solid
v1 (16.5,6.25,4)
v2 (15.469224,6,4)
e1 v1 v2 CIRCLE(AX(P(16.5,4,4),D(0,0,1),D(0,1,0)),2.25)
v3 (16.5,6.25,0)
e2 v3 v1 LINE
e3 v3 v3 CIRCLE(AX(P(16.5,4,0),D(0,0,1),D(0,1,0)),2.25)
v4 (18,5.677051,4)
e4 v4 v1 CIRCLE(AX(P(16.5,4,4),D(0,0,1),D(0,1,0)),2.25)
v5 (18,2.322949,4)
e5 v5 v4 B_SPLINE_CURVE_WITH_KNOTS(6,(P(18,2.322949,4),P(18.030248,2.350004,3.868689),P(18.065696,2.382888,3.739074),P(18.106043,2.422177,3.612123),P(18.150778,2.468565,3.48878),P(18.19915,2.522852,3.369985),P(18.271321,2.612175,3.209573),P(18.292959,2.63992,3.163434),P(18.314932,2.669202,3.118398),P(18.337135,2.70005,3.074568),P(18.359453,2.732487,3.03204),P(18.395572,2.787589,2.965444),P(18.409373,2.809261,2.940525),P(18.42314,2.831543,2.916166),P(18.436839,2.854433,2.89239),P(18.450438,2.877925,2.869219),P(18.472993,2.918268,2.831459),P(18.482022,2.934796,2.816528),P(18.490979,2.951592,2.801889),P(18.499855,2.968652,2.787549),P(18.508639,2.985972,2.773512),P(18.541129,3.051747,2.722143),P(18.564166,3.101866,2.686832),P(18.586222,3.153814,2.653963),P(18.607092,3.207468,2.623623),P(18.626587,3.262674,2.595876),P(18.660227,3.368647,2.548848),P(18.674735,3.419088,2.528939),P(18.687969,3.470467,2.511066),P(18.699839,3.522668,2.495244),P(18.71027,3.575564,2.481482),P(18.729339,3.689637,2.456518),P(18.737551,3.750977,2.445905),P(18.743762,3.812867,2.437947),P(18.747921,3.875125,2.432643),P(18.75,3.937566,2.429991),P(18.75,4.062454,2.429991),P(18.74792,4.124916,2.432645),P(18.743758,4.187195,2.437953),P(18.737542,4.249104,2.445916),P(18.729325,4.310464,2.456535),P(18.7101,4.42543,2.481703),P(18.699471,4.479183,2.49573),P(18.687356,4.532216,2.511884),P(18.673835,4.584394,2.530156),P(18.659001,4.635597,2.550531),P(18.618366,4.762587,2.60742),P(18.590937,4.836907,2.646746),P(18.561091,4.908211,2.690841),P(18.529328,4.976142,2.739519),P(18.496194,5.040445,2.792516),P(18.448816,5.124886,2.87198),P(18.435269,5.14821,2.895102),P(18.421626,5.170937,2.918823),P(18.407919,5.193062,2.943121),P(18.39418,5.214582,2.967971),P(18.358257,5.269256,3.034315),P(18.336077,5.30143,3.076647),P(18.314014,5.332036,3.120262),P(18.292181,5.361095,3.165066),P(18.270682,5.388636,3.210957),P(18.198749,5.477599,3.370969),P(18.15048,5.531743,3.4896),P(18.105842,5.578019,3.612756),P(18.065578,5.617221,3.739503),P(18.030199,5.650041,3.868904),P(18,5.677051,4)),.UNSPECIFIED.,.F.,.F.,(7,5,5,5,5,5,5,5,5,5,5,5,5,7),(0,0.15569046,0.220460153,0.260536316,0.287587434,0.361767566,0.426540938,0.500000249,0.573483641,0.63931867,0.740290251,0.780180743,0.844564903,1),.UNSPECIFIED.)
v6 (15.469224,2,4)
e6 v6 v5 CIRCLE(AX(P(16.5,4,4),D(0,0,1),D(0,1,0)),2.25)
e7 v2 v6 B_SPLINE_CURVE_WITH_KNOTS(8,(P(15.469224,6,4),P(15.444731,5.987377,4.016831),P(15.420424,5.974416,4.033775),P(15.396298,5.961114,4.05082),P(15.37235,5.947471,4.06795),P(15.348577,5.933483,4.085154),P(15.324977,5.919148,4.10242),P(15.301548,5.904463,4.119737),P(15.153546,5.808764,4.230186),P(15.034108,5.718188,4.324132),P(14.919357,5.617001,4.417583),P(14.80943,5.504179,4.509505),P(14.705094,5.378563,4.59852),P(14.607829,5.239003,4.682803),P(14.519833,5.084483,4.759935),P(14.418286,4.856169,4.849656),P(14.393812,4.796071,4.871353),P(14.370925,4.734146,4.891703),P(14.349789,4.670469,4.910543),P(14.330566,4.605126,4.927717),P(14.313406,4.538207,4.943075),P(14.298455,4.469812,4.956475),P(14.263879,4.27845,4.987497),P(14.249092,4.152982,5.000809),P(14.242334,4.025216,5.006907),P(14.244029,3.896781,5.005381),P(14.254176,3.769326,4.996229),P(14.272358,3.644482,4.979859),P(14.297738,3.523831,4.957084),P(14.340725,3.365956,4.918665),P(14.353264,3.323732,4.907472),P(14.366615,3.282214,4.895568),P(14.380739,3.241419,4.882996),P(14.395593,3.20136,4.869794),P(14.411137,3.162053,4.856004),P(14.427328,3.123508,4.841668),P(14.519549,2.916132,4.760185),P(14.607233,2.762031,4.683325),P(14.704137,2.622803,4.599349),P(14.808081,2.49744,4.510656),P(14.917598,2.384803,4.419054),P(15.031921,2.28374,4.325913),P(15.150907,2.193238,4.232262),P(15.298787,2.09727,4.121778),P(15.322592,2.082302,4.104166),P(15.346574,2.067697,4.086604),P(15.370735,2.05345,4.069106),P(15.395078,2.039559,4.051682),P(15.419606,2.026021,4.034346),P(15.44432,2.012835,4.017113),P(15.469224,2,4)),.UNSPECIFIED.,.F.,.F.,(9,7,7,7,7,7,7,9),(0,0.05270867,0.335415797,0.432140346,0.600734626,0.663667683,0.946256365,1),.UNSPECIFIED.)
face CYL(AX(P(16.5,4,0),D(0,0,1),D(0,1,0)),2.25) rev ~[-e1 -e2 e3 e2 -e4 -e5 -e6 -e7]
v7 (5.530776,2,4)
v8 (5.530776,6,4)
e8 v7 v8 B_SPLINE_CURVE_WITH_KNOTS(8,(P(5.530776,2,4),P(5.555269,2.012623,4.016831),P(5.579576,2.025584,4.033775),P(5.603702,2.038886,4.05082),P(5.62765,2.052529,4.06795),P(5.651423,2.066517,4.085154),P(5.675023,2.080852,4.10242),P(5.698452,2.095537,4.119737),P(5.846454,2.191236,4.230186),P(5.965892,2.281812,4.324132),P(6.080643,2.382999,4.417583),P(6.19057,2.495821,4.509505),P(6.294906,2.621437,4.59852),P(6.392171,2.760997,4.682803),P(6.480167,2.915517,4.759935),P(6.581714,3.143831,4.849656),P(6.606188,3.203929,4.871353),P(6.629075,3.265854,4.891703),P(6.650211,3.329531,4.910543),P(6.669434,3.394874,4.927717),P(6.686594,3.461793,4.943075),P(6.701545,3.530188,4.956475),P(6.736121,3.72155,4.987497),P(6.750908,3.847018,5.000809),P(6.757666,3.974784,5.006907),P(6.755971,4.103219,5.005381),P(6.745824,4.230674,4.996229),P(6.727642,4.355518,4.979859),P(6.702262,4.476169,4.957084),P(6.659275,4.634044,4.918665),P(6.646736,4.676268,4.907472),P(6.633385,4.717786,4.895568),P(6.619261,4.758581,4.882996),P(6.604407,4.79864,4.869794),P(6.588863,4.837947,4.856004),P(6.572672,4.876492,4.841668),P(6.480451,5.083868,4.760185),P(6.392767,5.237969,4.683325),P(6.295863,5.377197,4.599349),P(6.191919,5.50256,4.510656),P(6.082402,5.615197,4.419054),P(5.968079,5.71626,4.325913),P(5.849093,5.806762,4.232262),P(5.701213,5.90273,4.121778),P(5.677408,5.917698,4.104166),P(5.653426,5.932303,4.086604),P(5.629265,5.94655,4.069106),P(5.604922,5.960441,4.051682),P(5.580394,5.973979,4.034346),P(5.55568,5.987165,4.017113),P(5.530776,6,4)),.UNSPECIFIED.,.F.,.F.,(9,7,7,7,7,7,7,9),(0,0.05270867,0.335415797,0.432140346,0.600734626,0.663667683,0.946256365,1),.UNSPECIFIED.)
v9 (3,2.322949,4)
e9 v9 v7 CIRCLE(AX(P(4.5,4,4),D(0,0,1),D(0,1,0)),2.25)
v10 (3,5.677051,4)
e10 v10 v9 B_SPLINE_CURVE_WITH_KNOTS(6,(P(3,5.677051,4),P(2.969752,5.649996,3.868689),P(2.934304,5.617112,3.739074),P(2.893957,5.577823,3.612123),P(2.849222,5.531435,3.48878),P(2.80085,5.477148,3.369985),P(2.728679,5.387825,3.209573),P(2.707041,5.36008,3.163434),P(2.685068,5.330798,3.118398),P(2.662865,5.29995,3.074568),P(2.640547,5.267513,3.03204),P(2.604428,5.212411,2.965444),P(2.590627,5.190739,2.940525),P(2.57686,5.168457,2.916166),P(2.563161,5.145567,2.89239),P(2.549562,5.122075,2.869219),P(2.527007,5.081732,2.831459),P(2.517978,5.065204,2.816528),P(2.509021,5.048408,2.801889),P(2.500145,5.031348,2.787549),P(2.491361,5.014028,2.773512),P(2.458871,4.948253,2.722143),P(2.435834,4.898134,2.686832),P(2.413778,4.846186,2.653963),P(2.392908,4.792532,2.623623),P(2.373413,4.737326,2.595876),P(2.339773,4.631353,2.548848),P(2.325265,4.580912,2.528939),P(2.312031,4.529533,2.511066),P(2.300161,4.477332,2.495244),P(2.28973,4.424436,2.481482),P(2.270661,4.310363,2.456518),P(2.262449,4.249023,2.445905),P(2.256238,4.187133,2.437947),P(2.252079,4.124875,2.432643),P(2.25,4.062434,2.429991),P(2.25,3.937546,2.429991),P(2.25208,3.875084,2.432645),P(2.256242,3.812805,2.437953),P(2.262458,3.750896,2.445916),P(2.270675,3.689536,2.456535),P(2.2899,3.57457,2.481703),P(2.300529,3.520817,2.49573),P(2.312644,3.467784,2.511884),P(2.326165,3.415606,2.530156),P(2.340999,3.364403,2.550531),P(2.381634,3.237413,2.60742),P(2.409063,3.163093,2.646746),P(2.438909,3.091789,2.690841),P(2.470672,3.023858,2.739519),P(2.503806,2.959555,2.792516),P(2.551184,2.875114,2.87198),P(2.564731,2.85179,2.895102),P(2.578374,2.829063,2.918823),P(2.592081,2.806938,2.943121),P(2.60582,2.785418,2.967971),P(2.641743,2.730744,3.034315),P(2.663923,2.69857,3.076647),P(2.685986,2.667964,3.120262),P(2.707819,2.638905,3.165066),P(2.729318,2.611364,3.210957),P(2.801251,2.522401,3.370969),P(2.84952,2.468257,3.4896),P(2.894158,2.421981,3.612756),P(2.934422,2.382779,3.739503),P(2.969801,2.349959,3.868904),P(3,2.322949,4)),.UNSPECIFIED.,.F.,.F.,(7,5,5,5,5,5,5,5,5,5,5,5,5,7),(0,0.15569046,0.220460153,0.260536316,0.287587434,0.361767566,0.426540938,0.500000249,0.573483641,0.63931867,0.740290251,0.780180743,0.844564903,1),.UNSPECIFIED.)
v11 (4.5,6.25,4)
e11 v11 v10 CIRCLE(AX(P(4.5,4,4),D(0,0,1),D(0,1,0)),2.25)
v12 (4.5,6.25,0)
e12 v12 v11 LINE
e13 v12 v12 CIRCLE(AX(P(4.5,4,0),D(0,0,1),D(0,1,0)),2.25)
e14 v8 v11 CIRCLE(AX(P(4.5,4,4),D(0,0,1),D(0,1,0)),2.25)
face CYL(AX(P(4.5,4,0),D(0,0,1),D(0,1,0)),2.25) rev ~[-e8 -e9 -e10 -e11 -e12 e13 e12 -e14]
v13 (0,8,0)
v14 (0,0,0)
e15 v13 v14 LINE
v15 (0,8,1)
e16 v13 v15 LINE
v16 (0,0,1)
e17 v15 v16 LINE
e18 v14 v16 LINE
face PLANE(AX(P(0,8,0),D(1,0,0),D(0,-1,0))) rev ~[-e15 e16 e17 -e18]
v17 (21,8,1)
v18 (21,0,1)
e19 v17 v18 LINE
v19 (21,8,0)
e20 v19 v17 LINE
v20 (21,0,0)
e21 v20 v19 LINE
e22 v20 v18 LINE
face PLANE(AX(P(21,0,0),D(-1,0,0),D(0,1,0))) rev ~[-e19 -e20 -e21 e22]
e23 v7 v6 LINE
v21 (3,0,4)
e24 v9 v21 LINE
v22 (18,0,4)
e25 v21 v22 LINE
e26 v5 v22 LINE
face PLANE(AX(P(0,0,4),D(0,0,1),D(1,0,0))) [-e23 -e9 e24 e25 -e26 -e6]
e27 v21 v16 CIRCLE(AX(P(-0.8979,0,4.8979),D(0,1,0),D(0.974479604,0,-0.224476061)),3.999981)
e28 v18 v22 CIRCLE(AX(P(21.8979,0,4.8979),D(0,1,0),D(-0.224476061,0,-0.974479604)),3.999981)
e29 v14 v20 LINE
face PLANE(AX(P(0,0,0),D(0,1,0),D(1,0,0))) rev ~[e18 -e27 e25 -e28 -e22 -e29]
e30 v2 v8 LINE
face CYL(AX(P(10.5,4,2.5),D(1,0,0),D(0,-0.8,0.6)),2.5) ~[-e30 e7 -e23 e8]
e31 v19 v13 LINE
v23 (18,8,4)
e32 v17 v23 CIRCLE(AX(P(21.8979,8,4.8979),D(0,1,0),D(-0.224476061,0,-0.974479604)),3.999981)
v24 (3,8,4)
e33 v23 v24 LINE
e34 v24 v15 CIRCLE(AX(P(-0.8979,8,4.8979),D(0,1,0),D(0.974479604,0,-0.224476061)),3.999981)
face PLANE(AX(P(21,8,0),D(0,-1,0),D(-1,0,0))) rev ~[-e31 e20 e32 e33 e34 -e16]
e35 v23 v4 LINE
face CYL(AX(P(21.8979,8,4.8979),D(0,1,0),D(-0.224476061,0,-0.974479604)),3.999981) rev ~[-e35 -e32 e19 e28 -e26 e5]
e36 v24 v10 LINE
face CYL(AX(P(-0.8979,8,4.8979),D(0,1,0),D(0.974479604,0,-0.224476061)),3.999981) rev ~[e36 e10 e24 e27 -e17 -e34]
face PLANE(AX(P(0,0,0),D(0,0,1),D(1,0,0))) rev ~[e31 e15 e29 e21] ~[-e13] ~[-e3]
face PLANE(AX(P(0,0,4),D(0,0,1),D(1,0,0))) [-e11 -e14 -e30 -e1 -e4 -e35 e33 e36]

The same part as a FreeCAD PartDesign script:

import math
import FreeCAD as App
import Part
import Sketcher

V = App.Vector
Q = App.Units.Quantity


def add_polygon(sketch, points):
    """Adds a closed chain of lines whose ends are joined by coincident constraints."""
    first, n = sketch.GeometryCount, len(points)
    for a, b in zip(points, points[1:] + points[:1]):
        sketch.addGeometry(Part.LineSegment(App.Vector(*a, 0), App.Vector(*b, 0)), False)
    for i in range(n):
        sketch.addConstraint(Sketcher.Constraint("Coincident", first + i, 2, first + (i + 1) % n, 1))

doc = App.newDocument("Part")
body = doc.addObject("PartDesign::Body", "Body")

# Sketch on XY plane
sketch1 = doc.addObject("Sketcher::SketchObject", "Sketch")
body.addObject(sketch1)
sketch1.AttachmentSupport = (doc.XY_Plane, [""])
sketch1.MapMode = "FlatFace"
add_polygon(sketch1, [(0, 8), (0, 0), (21, 0), (21, 8)])  # lines 0-3
sketch1.addConstraint([
    Sketcher.Constraint("Vertical", 0),
    Sketcher.Constraint("Horizontal", 1),
    Sketcher.Constraint("Vertical", 2),
    Sketcher.Constraint("Horizontal", 3),
    Sketcher.Constraint("Coincident", 0, 2, -1, 1),
    Sketcher.Constraint("DistanceX", 1, 1, 1, 2, Q("21 mm")),
    Sketcher.Constraint("DistanceY", 0, 2, 0, 1, Q("8 mm")),
])
pad1 = doc.addObject("PartDesign::Pad", "Pad")
body.addObject(pad1)
pad1.Profile = sketch1
pad1.Length = 4

# Sketch on XZ plane
sketch2 = doc.addObject("Sketcher::SketchObject", "Sketch001")
body.addObject(sketch2)
sketch2.AttachmentSupport = (doc.XZ_Plane, [""])
sketch2.MapMode = "FlatFace"
sketch2.AttachmentOffset = App.Placement(V(0, 0, -8), App.Rotation())
sketch2.addGeometry([
    Part.ArcOfCircle(Part.Circle(V(-0.9, 4.9, 0), V(0, 0, 1), 4), math.radians(-77), math.radians(-13)),  # 0
    Part.LineSegment(V(0, 1, 0), V(0, 4, 0)),  # 1
    Part.LineSegment(V(0, 4, 0), V(3, 4, 0)),  # 2
    Part.ArcOfCircle(Part.Circle(V(21.9, 4.9, 0), V(0, 0, 1), 4), math.radians(-167), math.radians(-103)),  # 3
    Part.LineSegment(V(18, 4, 0), V(21, 4, 0)),  # 4
    Part.LineSegment(V(21, 4, 0), V(21, 1, 0)),  # 5
], False)
sketch2.addConstraint([
    Sketcher.Constraint("Coincident", 0, 1, 1, 1),
    Sketcher.Constraint("Coincident", 1, 2, 2, 1),
    Sketcher.Constraint("Coincident", 2, 2, 0, 2),
    Sketcher.Constraint("Coincident", 3, 1, 4, 1),
    Sketcher.Constraint("Coincident", 4, 2, 5, 1),
    Sketcher.Constraint("Coincident", 5, 2, 3, 2),
    Sketcher.Constraint("Vertical", 1),
    Sketcher.Constraint("Horizontal", 2),
    Sketcher.Constraint("Horizontal", 4),
    Sketcher.Constraint("Vertical", 5),
    Sketcher.Constraint("Equal", 0, 3),
    Sketcher.Constraint("PointOnObject", 0, 1, -2),
    Sketcher.Constraint("Horizontal", 0, 3, 3, 3),
    Sketcher.Constraint("Horizontal", 2, 2, 3, 1),
    Sketcher.Constraint("Horizontal", 0, 1, 5, 2),
    Sketcher.Constraint("Equal", 4, 1),
    Sketcher.Constraint("Radius", 0, Q("4 mm")),
    Sketcher.Constraint("DistanceX", 2, 1, 2, 2, Q("3 mm")),
    Sketcher.Constraint("DistanceY", -1, 1, 0, 1, Q("1 mm")),
    Sketcher.Constraint("DistanceX", -1, 1, 3, 1, Q("18 mm")),
])
pocket1 = doc.addObject("PartDesign::Pocket", "Pocket")
body.addObject(pocket1)
pocket1.Profile = sketch2
pocket1.Type = "UpToFirst"
pocket1.Reversed = True

# Sketch on YZ plane
sketch3 = doc.addObject("Sketcher::SketchObject", "Sketch002")
body.addObject(sketch3)
sketch3.AttachmentSupport = (doc.YZ_Plane, [""])
sketch3.MapMode = "FlatFace"
sketch3.AttachmentOffset = App.Placement(V(0, 0, 10.5), App.Rotation())
sketch3.addGeometry([
    Part.ArcOfCircle(Part.Circle(V(4, 2.5, 0), V(0, 0, 1), 2.5), math.radians(37), math.radians(143)),
    Part.LineSegment(V(6, 4, 0), V(2, 4, 0)),
], False)
sketch3.addConstraint([
    Sketcher.Constraint("Coincident", 0, 1, 1, 1),
    Sketcher.Constraint("Coincident", 1, 2, 0, 2),
    Sketcher.Constraint("Horizontal", 1),
    Sketcher.Constraint("Radius", 0, Q("2.5 mm")),
    Sketcher.Constraint("DistanceX", 1, 2, 1, 1, Q("4 mm")),
    Sketcher.Constraint("DistanceX", -1, 1, 0, 3, Q("4 mm")),
    Sketcher.Constraint("DistanceY", -1, 1, 0, 1, Q("4 mm")),
])
pad2 = doc.addObject("PartDesign::Pad", "Pad001")
body.addObject(pad2)
pad2.Profile = sketch3
pad2.Length = 12
pad2.Midplane = True

# Sketch on XY plane
sketch4 = doc.addObject("Sketcher::SketchObject", "Sketch003")
body.addObject(sketch4)
sketch4.AttachmentSupport = (doc.XY_Plane, [""])
sketch4.MapMode = "FlatFace"
sketch4.addGeometry([
    Part.Circle(V(4.5, 4, 0), V(0, 0, 1), 2.2),
    Part.Circle(V(16.5, 4, 0), V(0, 0, 1), 2.2),
], False)
sketch4.addConstraint([
    Sketcher.Constraint("Equal", 0, 1),
    Sketcher.Constraint("Horizontal", 0, 3, 1, 3),
    Sketcher.Constraint("Diameter", 0, Q("4.5 mm")),
    Sketcher.Constraint("DistanceY", -1, 1, 0, 3, Q("4 mm")),
    Sketcher.Constraint("DistanceX", 0, 3, 1, 3, Q("12 mm")),
    Sketcher.Constraint("DistanceX", -1, 1, 0, 3, Q("4.5 mm")),
])
doc.recompute()
hole = doc.addObject("PartDesign::Hole", "Hole")
body.addObject(hole)
hole.Profile = sketch4
hole.ThreadType = "None"
hole.Diameter = 4.5
hole.DepthType = "ThroughAll"
hole.Reversed = True

doc.recompute()
